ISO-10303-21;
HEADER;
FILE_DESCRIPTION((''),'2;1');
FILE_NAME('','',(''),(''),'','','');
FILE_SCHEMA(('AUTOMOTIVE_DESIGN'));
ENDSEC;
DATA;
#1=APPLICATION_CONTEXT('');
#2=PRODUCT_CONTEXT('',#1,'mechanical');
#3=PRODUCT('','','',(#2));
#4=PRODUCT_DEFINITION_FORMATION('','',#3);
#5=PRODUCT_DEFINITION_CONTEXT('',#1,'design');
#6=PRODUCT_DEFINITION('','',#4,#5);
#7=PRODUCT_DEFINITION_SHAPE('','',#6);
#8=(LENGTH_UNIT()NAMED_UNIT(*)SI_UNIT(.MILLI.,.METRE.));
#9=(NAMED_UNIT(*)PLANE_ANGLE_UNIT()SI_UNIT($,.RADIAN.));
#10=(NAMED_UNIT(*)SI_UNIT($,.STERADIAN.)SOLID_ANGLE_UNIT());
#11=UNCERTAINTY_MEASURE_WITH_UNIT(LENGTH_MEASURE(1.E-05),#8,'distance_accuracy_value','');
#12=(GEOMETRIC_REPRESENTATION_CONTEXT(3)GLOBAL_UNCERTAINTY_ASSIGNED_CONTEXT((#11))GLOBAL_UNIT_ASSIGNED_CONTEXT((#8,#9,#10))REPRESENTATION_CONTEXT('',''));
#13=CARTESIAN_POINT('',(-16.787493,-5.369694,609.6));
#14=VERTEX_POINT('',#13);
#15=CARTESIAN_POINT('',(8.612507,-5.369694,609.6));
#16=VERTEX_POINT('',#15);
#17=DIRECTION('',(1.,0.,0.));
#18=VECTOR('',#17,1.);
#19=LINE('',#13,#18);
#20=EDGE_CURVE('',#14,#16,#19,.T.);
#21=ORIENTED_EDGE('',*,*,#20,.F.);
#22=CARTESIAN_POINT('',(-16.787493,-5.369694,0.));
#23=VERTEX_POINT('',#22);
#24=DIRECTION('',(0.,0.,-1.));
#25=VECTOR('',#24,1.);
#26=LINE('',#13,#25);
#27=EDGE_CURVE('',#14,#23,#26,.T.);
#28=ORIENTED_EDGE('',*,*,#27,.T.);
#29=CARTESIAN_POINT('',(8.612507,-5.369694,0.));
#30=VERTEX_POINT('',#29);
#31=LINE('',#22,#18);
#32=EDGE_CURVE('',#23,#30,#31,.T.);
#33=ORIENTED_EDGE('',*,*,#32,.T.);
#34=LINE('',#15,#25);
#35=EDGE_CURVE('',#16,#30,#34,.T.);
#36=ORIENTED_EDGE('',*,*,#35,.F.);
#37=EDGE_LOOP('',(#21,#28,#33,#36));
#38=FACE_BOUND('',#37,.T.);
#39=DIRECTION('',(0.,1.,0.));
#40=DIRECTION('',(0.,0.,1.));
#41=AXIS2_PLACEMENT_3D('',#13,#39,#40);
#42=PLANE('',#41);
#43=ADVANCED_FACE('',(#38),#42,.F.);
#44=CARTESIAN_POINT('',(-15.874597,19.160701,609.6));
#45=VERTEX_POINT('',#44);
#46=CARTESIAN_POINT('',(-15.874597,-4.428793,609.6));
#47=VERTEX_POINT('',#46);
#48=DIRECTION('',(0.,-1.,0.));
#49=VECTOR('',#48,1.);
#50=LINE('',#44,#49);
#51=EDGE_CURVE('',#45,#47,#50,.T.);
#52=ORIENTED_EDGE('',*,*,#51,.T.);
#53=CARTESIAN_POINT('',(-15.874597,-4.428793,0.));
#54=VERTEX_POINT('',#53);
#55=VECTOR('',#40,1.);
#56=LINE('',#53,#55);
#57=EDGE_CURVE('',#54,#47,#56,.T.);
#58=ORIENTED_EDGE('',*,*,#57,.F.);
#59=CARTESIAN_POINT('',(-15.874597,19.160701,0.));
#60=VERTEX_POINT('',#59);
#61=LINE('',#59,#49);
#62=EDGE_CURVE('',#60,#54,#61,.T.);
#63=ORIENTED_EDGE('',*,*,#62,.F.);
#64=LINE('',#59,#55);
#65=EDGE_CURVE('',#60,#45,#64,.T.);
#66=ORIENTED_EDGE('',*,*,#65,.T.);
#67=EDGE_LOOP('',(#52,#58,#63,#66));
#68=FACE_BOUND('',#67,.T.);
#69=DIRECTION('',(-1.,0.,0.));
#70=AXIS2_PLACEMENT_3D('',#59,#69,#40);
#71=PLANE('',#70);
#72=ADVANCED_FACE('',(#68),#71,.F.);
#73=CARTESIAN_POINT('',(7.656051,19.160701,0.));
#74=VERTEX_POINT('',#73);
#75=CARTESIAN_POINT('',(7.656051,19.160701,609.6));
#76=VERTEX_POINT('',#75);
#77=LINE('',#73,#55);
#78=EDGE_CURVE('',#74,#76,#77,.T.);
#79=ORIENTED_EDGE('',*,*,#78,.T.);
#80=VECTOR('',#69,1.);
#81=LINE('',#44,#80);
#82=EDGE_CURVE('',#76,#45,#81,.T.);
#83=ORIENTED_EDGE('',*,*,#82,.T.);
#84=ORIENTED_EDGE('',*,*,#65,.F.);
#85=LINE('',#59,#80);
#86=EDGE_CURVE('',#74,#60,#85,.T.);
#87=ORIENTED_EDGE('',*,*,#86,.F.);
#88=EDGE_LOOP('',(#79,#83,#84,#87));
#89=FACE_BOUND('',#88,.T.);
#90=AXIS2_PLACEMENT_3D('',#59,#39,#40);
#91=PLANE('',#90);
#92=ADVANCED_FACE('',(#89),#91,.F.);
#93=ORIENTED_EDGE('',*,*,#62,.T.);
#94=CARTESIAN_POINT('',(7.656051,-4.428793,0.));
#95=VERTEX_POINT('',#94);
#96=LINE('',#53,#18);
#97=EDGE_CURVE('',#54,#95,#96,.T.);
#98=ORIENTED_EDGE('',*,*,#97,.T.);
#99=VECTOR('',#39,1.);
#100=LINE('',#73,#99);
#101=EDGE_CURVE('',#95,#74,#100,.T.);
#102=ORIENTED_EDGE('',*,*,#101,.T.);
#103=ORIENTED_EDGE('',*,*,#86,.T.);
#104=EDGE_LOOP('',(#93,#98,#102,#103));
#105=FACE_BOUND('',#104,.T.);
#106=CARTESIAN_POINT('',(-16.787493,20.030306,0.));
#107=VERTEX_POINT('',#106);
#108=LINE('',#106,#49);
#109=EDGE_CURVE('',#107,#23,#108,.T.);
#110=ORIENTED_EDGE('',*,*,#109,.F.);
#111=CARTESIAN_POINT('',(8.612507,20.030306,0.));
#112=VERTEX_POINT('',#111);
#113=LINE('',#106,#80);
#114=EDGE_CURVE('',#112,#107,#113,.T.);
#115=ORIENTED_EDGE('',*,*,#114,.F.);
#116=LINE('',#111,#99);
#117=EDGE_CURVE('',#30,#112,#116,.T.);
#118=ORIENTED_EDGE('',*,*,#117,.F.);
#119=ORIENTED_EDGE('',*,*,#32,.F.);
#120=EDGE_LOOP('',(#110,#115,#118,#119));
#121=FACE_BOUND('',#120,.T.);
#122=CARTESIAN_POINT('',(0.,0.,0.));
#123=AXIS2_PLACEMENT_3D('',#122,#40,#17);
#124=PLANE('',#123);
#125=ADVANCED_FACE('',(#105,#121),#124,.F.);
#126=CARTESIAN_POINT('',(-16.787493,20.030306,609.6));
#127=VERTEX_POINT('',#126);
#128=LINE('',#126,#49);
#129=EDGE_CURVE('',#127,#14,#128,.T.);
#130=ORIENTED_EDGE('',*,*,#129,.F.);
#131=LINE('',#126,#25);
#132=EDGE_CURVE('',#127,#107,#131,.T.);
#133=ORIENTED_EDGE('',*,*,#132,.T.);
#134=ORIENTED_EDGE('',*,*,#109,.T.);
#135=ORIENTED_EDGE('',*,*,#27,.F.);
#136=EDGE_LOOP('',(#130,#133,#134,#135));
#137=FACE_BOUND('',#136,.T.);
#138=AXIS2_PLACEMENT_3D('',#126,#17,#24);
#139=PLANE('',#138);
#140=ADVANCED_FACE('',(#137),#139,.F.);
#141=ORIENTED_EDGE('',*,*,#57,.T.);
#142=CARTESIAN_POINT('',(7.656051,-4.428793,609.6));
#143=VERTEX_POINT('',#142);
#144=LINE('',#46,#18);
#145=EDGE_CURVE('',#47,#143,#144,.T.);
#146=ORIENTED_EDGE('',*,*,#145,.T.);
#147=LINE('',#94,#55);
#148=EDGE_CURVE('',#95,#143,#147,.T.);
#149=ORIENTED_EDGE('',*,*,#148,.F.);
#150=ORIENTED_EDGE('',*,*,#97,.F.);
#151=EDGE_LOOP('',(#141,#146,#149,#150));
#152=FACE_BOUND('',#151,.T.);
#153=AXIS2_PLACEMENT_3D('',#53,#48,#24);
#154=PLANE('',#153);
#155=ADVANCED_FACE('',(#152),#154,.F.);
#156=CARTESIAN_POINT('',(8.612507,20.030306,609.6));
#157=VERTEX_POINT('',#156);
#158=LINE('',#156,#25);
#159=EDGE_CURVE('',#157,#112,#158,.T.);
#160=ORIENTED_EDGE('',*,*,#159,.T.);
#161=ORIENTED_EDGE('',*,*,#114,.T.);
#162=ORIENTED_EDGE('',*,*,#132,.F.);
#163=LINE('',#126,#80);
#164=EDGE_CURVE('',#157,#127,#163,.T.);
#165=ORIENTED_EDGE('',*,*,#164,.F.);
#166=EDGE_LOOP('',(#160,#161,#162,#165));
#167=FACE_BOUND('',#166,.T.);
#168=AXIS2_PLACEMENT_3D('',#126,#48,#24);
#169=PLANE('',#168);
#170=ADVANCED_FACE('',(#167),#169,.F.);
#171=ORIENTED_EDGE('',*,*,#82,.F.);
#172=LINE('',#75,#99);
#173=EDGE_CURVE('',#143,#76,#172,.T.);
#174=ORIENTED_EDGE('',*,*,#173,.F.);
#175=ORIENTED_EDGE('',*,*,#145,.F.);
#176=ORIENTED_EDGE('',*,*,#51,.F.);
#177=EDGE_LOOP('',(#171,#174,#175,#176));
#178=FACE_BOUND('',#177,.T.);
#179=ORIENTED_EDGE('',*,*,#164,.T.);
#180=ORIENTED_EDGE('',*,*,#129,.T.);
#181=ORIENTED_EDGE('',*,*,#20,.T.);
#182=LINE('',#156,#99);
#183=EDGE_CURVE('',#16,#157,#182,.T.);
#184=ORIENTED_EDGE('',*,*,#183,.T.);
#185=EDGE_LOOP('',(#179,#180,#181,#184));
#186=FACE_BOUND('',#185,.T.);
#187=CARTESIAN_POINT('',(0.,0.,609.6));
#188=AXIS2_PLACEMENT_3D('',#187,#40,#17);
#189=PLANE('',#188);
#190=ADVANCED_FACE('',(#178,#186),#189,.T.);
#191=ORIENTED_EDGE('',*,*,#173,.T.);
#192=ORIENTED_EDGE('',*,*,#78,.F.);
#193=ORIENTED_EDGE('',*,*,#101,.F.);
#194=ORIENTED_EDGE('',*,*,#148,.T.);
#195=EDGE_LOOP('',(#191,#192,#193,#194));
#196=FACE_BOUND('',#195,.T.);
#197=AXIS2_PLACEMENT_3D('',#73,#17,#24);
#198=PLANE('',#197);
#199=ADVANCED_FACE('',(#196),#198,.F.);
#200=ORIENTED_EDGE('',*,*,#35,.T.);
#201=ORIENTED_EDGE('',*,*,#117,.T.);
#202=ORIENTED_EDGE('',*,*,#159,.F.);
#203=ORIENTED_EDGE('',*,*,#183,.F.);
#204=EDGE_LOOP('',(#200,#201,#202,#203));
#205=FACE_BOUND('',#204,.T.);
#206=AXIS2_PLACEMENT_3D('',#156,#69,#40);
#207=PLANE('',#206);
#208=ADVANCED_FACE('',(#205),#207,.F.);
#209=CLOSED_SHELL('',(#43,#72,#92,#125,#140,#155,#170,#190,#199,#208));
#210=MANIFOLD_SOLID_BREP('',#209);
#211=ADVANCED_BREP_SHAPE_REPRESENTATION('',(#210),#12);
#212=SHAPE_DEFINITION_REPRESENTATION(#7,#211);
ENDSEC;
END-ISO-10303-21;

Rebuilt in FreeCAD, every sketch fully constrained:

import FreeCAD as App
import Part
import Sketcher
Q = App.Units.Quantity

doc = App.newDocument("Part")
body = doc.addObject("PartDesign::Body", "Body")

# Sketch on XY plane
sketch1 = body.newObject("Sketcher::SketchObject", "Sketch")
sketch1.AttachmentSupport = (doc.getObject("XY_Plane"), [""])
sketch1.MapMode = "FlatFace"
sketch1.addGeometry(Part.LineSegment(App.Vector(-16.787493, 20.030306, 0), App.Vector(-16.787493, -5.369694, 0)), False)
sketch1.addGeometry(Part.LineSegment(App.Vector(-16.787493, -5.369694, 0), App.Vector(8.612507, -5.369694, 0)), False)
sketch1.addGeometry(Part.LineSegment(App.Vector(8.612507, -5.369694, 0), App.Vector(8.612507, 20.030306, 0)), False)
sketch1.addGeometry(Part.LineSegment(App.Vector(8.612507, 20.030306, 0), App.Vector(-16.787493, 20.030306, 0)), False)
sketch1.addConstraint(Sketcher.Constraint("Coincident", 0, 2, 1, 1))
sketch1.addConstraint(Sketcher.Constraint("Coincident", 1, 2, 2, 1))
sketch1.addConstraint(Sketcher.Constraint("Coincident", 2, 2, 3, 1))
sketch1.addConstraint(Sketcher.Constraint("Coincident", 3, 2, 0, 1))
sketch1.addConstraint(Sketcher.Constraint("Vertical", 0))
sketch1.addConstraint(Sketcher.Constraint("Horizontal", 1))
sketch1.addConstraint(Sketcher.Constraint("Vertical", 2))
sketch1.addConstraint(Sketcher.Constraint("Horizontal", 3))
sketch1.addConstraint(Sketcher.Constraint("Equal", 3, 0))
sketch1.addConstraint(Sketcher.Constraint("DistanceX", 1, 1, 1, 2, Q("1 in")))
sketch1.addConstraint(Sketcher.Constraint("DistanceX", 0, 2, -1, 1, 16.787493))
sketch1.addConstraint(Sketcher.Constraint("DistanceY", 0, 2, -1, 1, 5.369694))
pad1 = body.newObject("PartDesign::Pad", "Pad")
pad1.Profile = sketch1
pad1.Length = Q("24 in")

# Sketch on XY plane
sketch2 = body.newObject("Sketcher::SketchObject", "Sketch001")
sketch2.AttachmentSupport = (doc.getObject("XY_Plane"), [""])
sketch2.MapMode = "FlatFace"
sketch2.AttachmentOffset = App.Placement(App.Vector(0, 0, 24 * 25.4), App.Rotation())
sketch2.addGeometry(Part.LineSegment(App.Vector(-15.874597, 19.160701, 0), App.Vector(-15.874597, -4.428793, 0)), False)
sketch2.addGeometry(Part.LineSegment(App.Vector(-15.874597, -4.428793, 0), App.Vector(7.656051, -4.428793, 0)), False)
sketch2.addGeometry(Part.LineSegment(App.Vector(7.656051, -4.428793, 0), App.Vector(7.656051, 19.160701, 0)), False)
sketch2.addGeometry(Part.LineSegment(App.Vector(7.656051, 19.160701, 0), App.Vector(-15.874597, 19.160701, 0)), False)
sketch2.addConstraint(Sketcher.Constraint("Coincident", 0, 2, 1, 1))
sketch2.addConstraint(Sketcher.Constraint("Coincident", 1, 2, 2, 1))
sketch2.addConstraint(Sketcher.Constraint("Coincident", 2, 2, 3, 1))
sketch2.addConstraint(Sketcher.Constraint("Coincident", 3, 2, 0, 1))
sketch2.addConstraint(Sketcher.Constraint("Vertical", 0))
sketch2.addConstraint(Sketcher.Constraint("Horizontal", 1))
sketch2.addConstraint(Sketcher.Constraint("Vertical", 2))
sketch2.addConstraint(Sketcher.Constraint("Horizontal", 3))
sketch2.addConstraint(Sketcher.Constraint("DistanceX", 1, 1, 1, 2, 23.530648))
sketch2.addConstraint(Sketcher.Constraint("DistanceY", -1, 1, 2, 2, 19.160701))
sketch2.addConstraint(Sketcher.Constraint("DistanceY", 0, 2, 0, 1, 23.589493))
sketch2.addConstraint(Sketcher.Constraint("DistanceX", -1, 1, 1, 2, 7.656051))
pocket1 = body.newObject("PartDesign::Pocket", "Pocket")
pocket1.Profile = sketch2
pocket1.Length = Q("24 in")

doc.recompute()
